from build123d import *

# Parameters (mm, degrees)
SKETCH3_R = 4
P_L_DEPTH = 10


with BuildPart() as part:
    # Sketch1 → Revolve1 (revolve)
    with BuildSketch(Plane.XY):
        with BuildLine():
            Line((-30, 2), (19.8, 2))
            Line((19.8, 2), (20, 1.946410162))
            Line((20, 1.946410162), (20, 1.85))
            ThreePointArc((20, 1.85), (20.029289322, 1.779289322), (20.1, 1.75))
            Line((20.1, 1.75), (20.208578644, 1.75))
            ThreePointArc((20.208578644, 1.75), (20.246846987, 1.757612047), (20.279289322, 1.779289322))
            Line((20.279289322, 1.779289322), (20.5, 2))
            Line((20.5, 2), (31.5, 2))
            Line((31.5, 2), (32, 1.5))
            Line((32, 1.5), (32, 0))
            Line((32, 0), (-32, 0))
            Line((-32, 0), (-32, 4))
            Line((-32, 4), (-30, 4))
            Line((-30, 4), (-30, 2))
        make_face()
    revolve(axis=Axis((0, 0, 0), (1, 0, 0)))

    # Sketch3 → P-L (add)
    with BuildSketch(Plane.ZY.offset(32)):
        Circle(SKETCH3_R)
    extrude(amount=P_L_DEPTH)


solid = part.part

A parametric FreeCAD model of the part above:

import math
import FreeCAD as App
import Part
import Sketcher
Q = App.Units.Quantity

doc = App.newDocument("Part")
body = doc.addObject("PartDesign::Body", "Body")

# Sketch on XY plane
sketch1 = body.newObject("Sketcher::SketchObject", "Sketch")
sketch1.AttachmentSupport = (doc.getObject("XY_Plane"), [""])
sketch1.MapMode = "FlatFace"
sketch1.addGeometry(Part.LineSegment(App.Vector(19.8, 2, 0), App.Vector(-30, 2, 0)), False)
sketch1.addGeometry(Part.LineSegment(App.Vector(-30, 2, 0), App.Vector(-30, 4, 0)), False)
sketch1.addGeometry(Part.LineSegment(App.Vector(-30, 4, 0), App.Vector(-32, 4, 0)), False)
sketch1.addGeometry(Part.LineSegment(App.Vector(-32, 4, 0), App.Vector(-32, 0, 0)), False)
sketch1.addGeometry(Part.LineSegment(App.Vector(-32, 0, 0), App.Vector(32, 0, 0)), False)
sketch1.addGeometry(Part.LineSegment(App.Vector(32, 0, 0), App.Vector(32, 1.5, 0)), False)
sketch1.addGeometry(Part.LineSegment(App.Vector(32, 1.5, 0), App.Vector(31.5, 2, 0)), False)
sketch1.addGeometry(Part.LineSegment(App.Vector(31.5, 2, 0), App.Vector(20.5, 2, 0)), False)
sketch1.addGeometry(Part.LineSegment(App.Vector(20.5, 2, 0), App.Vector(20.28, 1.78, 0)), False)
sketch1.addGeometry(Part.ArcOfCircle(Part.Circle(App.Vector(20.21, 1.85, 0), App.Vector(0, 0, 1), 0.1), math.radians(-90), math.radians(-45)), False)
sketch1.addGeometry(Part.LineSegment(App.Vector(20.21, 1.75, 0), App.Vector(20.1, 1.75, 0)), False)
sketch1.addGeometry(Part.ArcOfCircle(Part.Circle(App.Vector(20.1, 1.85, 0), App.Vector(0, 0, 1), 0.1), math.radians(180), math.radians(270)), False)
sketch1.addGeometry(Part.LineSegment(App.Vector(20, 1.85, 0), App.Vector(20, 1.95, 0)), False)
sketch1.addGeometry(Part.LineSegment(App.Vector(20, 1.95, 0), App.Vector(19.8, 2, 0)), False)
sketch1.addConstraint(Sketcher.Constraint("Coincident", 0, 2, 1, 1))
sketch1.addConstraint(Sketcher.Constraint("Coincident", 1, 2, 2, 1))
sketch1.addConstraint(Sketcher.Constraint("Coincident", 2, 2, 3, 1))
sketch1.addConstraint(Sketcher.Constraint("Coincident", 3, 2, 4, 1))
sketch1.addConstraint(Sketcher.Constraint("Coincident", 4, 2, 5, 1))
sketch1.addConstraint(Sketcher.Constraint("Coincident", 5, 2, 6, 1))
sketch1.addConstraint(Sketcher.Constraint("Coincident", 6, 2, 7, 1))
sketch1.addConstraint(Sketcher.Constraint("Coincident", 7, 2, 8, 1))
sketch1.addConstraint(Sketcher.Constraint("Tangent", 8, 2, 9, 2))
sketch1.addConstraint(Sketcher.Constraint("Tangent", 9, 1, 10, 1))
sketch1.addConstraint(Sketcher.Constraint("Tangent", 10, 2, 11, 2))
sketch1.addConstraint(Sketcher.Constraint("Tangent", 11, 1, 12, 1))
sketch1.addConstraint(Sketcher.Constraint("Coincident", 12, 2, 13, 1))
sketch1.addConstraint(Sketcher.Constraint("Coincident", 13, 2, 0, 1))
sketch1.addConstraint(Sketcher.Constraint("Horizontal", 0))
sketch1.addConstraint(Sketcher.Constraint("Vertical", 1))
sketch1.addConstraint(Sketcher.Constraint("Horizontal", 2))
sketch1.addConstraint(Sketcher.Constraint("Vertical", 3))
sketch1.addConstraint(Sketcher.Constraint("Horizontal", 4))
sketch1.addConstraint(Sketcher.Constraint("Vertical", 5))
sketch1.addConstraint(Sketcher.Constraint("Horizontal", 7))
sketch1.addConstraint(Sketcher.Constraint("Horizontal", 10))
sketch1.addConstraint(Sketcher.Constraint("Vertical", 12))
sketch1.addConstraint(Sketcher.Constraint("Equal", 9, 11))
sketch1.addConstraint(Sketcher.Constraint("Symmetric", 3, 2, 4, 2, -1, 1))
sketch1.addConstraint(Sketcher.Constraint("Perpendicular", 6, 8))
sketch1.addConstraint(Sketcher.Constraint("Horizontal", 0, 2, 6, 2))
sketch1.addConstraint(Sketcher.Constraint("Equal", 2, 1))
sketch1.addConstraint(Sketcher.Constraint("Radius", 9, 0.1))
sketch1.addConstraint(Sketcher.Constraint("DistanceX", 2, 2, 2, 1, 2.0))
sketch1.addConstraint(Sketcher.Constraint("DistanceX", 4, 1, 4, 2, 64.0))
sketch1.addConstraint(Sketcher.Constraint("DistanceX", 7, 2, 7, 1, 11.0))
sketch1.addConstraint(Sketcher.Constraint("DistanceY", 3, 2, 3, 1, 4.0))
sketch1.addConstraint(Sketcher.Constraint("Angle", 6, Q("135 deg")))
sketch1.addConstraint(Sketcher.Constraint("Angle", 13, Q("165 deg")))
sketch1.addConstraint(Sketcher.Constraint("DistanceX", 0, 2, 0, 1, 49.8))
sketch1.addConstraint(Sketcher.Constraint("DistanceY", 5, 1, 5, 2, 1.5))
sketch1.addConstraint(Sketcher.Constraint("DistanceX", -1, 1, 11, 1, 20.0))
sketch1.addConstraint(Sketcher.Constraint("DistanceY", -1, 1, 9, 3, 1.85))
revolution = body.newObject("PartDesign::Revolution", "Revolution")
revolution.Profile = sketch1
revolution.ReferenceAxis = (sketch1, ["H_Axis"])
revolution.Angle = 360

# Sketch on YZ plane
sketch2 = body.newObject("Sketcher::SketchObject", "Sketch001")
sketch2.AttachmentSupport = (doc.getObject("YZ_Plane"), [""])
sketch2.MapMode = "FlatFace"
sketch2.AttachmentOffset = App.Placement(App.Vector(0, 0, -32), App.Rotation())
sketch2.addGeometry(Part.Circle(App.Vector(0, 0, 0), App.Vector(0, 0, 1), 4), False)
sketch2.addConstraint(Sketcher.Constraint("Coincident", 0, 3, -1, 1))
sketch2.addConstraint(Sketcher.Constraint("Diameter", 0, 8.0))
pad1 = body.newObject("PartDesign::Pad", "Pad")
pad1.Profile = sketch2
pad1.Length = 10
pad1.Reversed = True

doc.recompute()
